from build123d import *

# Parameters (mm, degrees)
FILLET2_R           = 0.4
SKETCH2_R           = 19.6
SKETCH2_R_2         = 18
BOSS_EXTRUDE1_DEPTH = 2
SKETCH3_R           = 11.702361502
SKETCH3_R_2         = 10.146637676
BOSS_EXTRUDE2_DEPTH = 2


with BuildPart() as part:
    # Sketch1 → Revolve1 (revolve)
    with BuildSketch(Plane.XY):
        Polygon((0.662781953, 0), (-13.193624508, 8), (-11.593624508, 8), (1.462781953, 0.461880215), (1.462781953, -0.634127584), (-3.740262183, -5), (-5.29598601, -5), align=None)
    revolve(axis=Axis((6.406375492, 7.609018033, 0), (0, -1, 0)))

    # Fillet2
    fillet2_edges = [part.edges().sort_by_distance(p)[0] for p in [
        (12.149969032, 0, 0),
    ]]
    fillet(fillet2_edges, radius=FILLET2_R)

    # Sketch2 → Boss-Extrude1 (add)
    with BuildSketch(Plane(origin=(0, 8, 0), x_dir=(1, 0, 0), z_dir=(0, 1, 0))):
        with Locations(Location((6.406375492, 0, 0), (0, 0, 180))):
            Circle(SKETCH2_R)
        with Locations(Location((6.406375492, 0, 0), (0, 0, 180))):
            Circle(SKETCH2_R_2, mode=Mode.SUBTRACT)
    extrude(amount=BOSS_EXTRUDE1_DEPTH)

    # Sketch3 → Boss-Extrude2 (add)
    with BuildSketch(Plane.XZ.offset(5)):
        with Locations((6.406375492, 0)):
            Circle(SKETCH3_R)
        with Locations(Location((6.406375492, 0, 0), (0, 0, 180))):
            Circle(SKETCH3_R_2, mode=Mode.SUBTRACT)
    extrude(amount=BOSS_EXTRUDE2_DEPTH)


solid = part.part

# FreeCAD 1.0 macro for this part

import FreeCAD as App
import Part
import Sketcher
from FreeCAD import Vector
Q = App.Units.Quantity


def edges_at(feature, points):
    """Names of the edges that pass closest to the given points."""
    edges = feature.Shape.Edges
    near = lambda p: min(range(len(edges)), key=lambda i: edges[i].distToShape(Part.Vertex(*p))[0])
    return sorted({f"Edge{near(p) + 1}" for p in points})


def add_polygon(sketch, points):
    """Adds a closed chain of lines whose ends are joined by coincident constraints."""
    first, n = sketch.GeometryCount, len(points)
    for a, b in zip(points, points[1:] + points[:1]):
        sketch.addGeometry(Part.LineSegment(App.Vector(*a, 0), App.Vector(*b, 0)), False)
    for i in range(n):
        sketch.addConstraint(Sketcher.Constraint("Coincident", first + i, 2, first + (i + 1) % n, 1))

doc = App.newDocument("Part")
body = doc.addObject("PartDesign::Body", "Body")

# Sketch on XY plane
sketch1 = doc.addObject("Sketcher::SketchObject", "Sketch")
body.addObject(sketch1)
sketch1.AttachmentSupport = (doc.XY_Plane, [""])
sketch1.MapMode = "FlatFace"
add_polygon(sketch1, [(-13.2, 8), (0.7, 0), (-5.3, -5), (-3.7, -5), (1.5, -0.6), (1.5, 0.5), (-11.6, 8)])  # lines 0-6
sketch1.addGeometry(Part.LineSegment(Vector(6.4, 8, 0), Vector(6.4, -5, 0)), True)  # axis
sketch1.addConstraint([
    Sketcher.Constraint("Horizontal", 2),
    Sketcher.Constraint("Vertical", 4),
    Sketcher.Constraint("Horizontal", 6),
    Sketcher.Constraint("Vertical", 7),
    Sketcher.Constraint("PointOnObject", 0, 2, -1),
    Sketcher.Constraint("Parallel", 1, 3),
    Sketcher.Constraint("Parallel", 0, 5),
    Sketcher.Constraint("Horizontal", 6, 2, 7, 1),
    Sketcher.Constraint("Horizontal", 2, 2, 7, 2),
    Sketcher.Constraint("DistanceY", 7, 2, 7, 1, 13.0),
    Sketcher.Constraint("Angle", 0, Q("-30 deg")),
    Sketcher.Constraint("Angle", 1, Q("-140 deg")),
    Sketcher.Constraint("Distance", 0, 16.0),
    Sketcher.Constraint("DistanceX", 6, 2, 6, 1, 1.6),
    Sketcher.Constraint("DistanceX", 0, 2, 3, 2, 0.8),
    Sketcher.Constraint("Distance", 3, 6.792092),
    Sketcher.Constraint("DistanceX", -1, 1, 0, 2, 0.662782),
    Sketcher.Constraint("DistanceX", 1, 2, 7, 1, 11.702362),
])
revolution = doc.addObject("PartDesign::Revolution", "Revolution")
body.addObject(revolution)
revolution.Profile = sketch1
revolution.ReferenceAxis = (sketch1, ["Axis0"])
revolution.Angle = 360
doc.recompute()

fillet = doc.addObject("PartDesign::Fillet", "Fillet")
body.addObject(fillet)
fillet.Base = (revolution, edges_at(revolution, [(12.15, 0, 0)]))
fillet.Radius = 0.4

# Sketch on XZ plane
sketch2 = doc.addObject("Sketcher::SketchObject", "Sketch001")
body.addObject(sketch2)
sketch2.AttachmentSupport = (doc.XZ_Plane, [""])
sketch2.MapMode = "FlatFace"
sketch2.AttachmentOffset = App.Placement(Vector(0, 0, -8), App.Rotation())
sketch2.addGeometry([
    Part.Circle(Vector(6, 0, 0), Vector(0, 0, 1), 20),
    Part.Circle(Vector(6, 0, 0), Vector(0, 0, 1), 18),
], False)
sketch2.addConstraint([
    Sketcher.Constraint("Coincident", 1, 3, 0, 3),
    Sketcher.Constraint("PointOnObject", 0, 3, -1),
    Sketcher.Constraint("Diameter", 1, 36.0),
    Sketcher.Constraint("Diameter", 0, 39.2),
    Sketcher.Constraint("DistanceX", -1, 1, 0, 3, 6.406375),
])
pad1 = doc.addObject("PartDesign::Pad", "Pad")
body.addObject(pad1)
pad1.Profile = sketch2
pad1.Length = 2
pad1.Reversed = True

# Sketch on XZ plane
sketch3 = doc.addObject("Sketcher::SketchObject", "Sketch002")
body.addObject(sketch3)
sketch3.AttachmentSupport = (doc.XZ_Plane, [""])
sketch3.MapMode = "FlatFace"
sketch3.AttachmentOffset = App.Placement(Vector(0, 0, 5), App.Rotation())
sketch3.addGeometry([
    Part.Circle(Vector(6, 0, 0), Vector(0, 0, 1), 12),
    Part.Circle(Vector(6, 0, 0), Vector(0, 0, 1), 10),
], False)
sketch3.addConstraint([
    Sketcher.Constraint("Coincident", 1, 3, 0, 3),
    Sketcher.Constraint("PointOnObject", 0, 3, -1),
    Sketcher.Constraint("Diameter", 0, 23.404723),
    Sketcher.Constraint("Diameter", 1, 20.293275),
    Sketcher.Constraint("DistanceX", -1, 1, 0, 3, 6.406375),
])
pad2 = doc.addObject("PartDesign::Pad", "Pad001")
body.addObject(pad2)
pad2.Profile = sketch3
pad2.Length = 2

doc.recompute()
